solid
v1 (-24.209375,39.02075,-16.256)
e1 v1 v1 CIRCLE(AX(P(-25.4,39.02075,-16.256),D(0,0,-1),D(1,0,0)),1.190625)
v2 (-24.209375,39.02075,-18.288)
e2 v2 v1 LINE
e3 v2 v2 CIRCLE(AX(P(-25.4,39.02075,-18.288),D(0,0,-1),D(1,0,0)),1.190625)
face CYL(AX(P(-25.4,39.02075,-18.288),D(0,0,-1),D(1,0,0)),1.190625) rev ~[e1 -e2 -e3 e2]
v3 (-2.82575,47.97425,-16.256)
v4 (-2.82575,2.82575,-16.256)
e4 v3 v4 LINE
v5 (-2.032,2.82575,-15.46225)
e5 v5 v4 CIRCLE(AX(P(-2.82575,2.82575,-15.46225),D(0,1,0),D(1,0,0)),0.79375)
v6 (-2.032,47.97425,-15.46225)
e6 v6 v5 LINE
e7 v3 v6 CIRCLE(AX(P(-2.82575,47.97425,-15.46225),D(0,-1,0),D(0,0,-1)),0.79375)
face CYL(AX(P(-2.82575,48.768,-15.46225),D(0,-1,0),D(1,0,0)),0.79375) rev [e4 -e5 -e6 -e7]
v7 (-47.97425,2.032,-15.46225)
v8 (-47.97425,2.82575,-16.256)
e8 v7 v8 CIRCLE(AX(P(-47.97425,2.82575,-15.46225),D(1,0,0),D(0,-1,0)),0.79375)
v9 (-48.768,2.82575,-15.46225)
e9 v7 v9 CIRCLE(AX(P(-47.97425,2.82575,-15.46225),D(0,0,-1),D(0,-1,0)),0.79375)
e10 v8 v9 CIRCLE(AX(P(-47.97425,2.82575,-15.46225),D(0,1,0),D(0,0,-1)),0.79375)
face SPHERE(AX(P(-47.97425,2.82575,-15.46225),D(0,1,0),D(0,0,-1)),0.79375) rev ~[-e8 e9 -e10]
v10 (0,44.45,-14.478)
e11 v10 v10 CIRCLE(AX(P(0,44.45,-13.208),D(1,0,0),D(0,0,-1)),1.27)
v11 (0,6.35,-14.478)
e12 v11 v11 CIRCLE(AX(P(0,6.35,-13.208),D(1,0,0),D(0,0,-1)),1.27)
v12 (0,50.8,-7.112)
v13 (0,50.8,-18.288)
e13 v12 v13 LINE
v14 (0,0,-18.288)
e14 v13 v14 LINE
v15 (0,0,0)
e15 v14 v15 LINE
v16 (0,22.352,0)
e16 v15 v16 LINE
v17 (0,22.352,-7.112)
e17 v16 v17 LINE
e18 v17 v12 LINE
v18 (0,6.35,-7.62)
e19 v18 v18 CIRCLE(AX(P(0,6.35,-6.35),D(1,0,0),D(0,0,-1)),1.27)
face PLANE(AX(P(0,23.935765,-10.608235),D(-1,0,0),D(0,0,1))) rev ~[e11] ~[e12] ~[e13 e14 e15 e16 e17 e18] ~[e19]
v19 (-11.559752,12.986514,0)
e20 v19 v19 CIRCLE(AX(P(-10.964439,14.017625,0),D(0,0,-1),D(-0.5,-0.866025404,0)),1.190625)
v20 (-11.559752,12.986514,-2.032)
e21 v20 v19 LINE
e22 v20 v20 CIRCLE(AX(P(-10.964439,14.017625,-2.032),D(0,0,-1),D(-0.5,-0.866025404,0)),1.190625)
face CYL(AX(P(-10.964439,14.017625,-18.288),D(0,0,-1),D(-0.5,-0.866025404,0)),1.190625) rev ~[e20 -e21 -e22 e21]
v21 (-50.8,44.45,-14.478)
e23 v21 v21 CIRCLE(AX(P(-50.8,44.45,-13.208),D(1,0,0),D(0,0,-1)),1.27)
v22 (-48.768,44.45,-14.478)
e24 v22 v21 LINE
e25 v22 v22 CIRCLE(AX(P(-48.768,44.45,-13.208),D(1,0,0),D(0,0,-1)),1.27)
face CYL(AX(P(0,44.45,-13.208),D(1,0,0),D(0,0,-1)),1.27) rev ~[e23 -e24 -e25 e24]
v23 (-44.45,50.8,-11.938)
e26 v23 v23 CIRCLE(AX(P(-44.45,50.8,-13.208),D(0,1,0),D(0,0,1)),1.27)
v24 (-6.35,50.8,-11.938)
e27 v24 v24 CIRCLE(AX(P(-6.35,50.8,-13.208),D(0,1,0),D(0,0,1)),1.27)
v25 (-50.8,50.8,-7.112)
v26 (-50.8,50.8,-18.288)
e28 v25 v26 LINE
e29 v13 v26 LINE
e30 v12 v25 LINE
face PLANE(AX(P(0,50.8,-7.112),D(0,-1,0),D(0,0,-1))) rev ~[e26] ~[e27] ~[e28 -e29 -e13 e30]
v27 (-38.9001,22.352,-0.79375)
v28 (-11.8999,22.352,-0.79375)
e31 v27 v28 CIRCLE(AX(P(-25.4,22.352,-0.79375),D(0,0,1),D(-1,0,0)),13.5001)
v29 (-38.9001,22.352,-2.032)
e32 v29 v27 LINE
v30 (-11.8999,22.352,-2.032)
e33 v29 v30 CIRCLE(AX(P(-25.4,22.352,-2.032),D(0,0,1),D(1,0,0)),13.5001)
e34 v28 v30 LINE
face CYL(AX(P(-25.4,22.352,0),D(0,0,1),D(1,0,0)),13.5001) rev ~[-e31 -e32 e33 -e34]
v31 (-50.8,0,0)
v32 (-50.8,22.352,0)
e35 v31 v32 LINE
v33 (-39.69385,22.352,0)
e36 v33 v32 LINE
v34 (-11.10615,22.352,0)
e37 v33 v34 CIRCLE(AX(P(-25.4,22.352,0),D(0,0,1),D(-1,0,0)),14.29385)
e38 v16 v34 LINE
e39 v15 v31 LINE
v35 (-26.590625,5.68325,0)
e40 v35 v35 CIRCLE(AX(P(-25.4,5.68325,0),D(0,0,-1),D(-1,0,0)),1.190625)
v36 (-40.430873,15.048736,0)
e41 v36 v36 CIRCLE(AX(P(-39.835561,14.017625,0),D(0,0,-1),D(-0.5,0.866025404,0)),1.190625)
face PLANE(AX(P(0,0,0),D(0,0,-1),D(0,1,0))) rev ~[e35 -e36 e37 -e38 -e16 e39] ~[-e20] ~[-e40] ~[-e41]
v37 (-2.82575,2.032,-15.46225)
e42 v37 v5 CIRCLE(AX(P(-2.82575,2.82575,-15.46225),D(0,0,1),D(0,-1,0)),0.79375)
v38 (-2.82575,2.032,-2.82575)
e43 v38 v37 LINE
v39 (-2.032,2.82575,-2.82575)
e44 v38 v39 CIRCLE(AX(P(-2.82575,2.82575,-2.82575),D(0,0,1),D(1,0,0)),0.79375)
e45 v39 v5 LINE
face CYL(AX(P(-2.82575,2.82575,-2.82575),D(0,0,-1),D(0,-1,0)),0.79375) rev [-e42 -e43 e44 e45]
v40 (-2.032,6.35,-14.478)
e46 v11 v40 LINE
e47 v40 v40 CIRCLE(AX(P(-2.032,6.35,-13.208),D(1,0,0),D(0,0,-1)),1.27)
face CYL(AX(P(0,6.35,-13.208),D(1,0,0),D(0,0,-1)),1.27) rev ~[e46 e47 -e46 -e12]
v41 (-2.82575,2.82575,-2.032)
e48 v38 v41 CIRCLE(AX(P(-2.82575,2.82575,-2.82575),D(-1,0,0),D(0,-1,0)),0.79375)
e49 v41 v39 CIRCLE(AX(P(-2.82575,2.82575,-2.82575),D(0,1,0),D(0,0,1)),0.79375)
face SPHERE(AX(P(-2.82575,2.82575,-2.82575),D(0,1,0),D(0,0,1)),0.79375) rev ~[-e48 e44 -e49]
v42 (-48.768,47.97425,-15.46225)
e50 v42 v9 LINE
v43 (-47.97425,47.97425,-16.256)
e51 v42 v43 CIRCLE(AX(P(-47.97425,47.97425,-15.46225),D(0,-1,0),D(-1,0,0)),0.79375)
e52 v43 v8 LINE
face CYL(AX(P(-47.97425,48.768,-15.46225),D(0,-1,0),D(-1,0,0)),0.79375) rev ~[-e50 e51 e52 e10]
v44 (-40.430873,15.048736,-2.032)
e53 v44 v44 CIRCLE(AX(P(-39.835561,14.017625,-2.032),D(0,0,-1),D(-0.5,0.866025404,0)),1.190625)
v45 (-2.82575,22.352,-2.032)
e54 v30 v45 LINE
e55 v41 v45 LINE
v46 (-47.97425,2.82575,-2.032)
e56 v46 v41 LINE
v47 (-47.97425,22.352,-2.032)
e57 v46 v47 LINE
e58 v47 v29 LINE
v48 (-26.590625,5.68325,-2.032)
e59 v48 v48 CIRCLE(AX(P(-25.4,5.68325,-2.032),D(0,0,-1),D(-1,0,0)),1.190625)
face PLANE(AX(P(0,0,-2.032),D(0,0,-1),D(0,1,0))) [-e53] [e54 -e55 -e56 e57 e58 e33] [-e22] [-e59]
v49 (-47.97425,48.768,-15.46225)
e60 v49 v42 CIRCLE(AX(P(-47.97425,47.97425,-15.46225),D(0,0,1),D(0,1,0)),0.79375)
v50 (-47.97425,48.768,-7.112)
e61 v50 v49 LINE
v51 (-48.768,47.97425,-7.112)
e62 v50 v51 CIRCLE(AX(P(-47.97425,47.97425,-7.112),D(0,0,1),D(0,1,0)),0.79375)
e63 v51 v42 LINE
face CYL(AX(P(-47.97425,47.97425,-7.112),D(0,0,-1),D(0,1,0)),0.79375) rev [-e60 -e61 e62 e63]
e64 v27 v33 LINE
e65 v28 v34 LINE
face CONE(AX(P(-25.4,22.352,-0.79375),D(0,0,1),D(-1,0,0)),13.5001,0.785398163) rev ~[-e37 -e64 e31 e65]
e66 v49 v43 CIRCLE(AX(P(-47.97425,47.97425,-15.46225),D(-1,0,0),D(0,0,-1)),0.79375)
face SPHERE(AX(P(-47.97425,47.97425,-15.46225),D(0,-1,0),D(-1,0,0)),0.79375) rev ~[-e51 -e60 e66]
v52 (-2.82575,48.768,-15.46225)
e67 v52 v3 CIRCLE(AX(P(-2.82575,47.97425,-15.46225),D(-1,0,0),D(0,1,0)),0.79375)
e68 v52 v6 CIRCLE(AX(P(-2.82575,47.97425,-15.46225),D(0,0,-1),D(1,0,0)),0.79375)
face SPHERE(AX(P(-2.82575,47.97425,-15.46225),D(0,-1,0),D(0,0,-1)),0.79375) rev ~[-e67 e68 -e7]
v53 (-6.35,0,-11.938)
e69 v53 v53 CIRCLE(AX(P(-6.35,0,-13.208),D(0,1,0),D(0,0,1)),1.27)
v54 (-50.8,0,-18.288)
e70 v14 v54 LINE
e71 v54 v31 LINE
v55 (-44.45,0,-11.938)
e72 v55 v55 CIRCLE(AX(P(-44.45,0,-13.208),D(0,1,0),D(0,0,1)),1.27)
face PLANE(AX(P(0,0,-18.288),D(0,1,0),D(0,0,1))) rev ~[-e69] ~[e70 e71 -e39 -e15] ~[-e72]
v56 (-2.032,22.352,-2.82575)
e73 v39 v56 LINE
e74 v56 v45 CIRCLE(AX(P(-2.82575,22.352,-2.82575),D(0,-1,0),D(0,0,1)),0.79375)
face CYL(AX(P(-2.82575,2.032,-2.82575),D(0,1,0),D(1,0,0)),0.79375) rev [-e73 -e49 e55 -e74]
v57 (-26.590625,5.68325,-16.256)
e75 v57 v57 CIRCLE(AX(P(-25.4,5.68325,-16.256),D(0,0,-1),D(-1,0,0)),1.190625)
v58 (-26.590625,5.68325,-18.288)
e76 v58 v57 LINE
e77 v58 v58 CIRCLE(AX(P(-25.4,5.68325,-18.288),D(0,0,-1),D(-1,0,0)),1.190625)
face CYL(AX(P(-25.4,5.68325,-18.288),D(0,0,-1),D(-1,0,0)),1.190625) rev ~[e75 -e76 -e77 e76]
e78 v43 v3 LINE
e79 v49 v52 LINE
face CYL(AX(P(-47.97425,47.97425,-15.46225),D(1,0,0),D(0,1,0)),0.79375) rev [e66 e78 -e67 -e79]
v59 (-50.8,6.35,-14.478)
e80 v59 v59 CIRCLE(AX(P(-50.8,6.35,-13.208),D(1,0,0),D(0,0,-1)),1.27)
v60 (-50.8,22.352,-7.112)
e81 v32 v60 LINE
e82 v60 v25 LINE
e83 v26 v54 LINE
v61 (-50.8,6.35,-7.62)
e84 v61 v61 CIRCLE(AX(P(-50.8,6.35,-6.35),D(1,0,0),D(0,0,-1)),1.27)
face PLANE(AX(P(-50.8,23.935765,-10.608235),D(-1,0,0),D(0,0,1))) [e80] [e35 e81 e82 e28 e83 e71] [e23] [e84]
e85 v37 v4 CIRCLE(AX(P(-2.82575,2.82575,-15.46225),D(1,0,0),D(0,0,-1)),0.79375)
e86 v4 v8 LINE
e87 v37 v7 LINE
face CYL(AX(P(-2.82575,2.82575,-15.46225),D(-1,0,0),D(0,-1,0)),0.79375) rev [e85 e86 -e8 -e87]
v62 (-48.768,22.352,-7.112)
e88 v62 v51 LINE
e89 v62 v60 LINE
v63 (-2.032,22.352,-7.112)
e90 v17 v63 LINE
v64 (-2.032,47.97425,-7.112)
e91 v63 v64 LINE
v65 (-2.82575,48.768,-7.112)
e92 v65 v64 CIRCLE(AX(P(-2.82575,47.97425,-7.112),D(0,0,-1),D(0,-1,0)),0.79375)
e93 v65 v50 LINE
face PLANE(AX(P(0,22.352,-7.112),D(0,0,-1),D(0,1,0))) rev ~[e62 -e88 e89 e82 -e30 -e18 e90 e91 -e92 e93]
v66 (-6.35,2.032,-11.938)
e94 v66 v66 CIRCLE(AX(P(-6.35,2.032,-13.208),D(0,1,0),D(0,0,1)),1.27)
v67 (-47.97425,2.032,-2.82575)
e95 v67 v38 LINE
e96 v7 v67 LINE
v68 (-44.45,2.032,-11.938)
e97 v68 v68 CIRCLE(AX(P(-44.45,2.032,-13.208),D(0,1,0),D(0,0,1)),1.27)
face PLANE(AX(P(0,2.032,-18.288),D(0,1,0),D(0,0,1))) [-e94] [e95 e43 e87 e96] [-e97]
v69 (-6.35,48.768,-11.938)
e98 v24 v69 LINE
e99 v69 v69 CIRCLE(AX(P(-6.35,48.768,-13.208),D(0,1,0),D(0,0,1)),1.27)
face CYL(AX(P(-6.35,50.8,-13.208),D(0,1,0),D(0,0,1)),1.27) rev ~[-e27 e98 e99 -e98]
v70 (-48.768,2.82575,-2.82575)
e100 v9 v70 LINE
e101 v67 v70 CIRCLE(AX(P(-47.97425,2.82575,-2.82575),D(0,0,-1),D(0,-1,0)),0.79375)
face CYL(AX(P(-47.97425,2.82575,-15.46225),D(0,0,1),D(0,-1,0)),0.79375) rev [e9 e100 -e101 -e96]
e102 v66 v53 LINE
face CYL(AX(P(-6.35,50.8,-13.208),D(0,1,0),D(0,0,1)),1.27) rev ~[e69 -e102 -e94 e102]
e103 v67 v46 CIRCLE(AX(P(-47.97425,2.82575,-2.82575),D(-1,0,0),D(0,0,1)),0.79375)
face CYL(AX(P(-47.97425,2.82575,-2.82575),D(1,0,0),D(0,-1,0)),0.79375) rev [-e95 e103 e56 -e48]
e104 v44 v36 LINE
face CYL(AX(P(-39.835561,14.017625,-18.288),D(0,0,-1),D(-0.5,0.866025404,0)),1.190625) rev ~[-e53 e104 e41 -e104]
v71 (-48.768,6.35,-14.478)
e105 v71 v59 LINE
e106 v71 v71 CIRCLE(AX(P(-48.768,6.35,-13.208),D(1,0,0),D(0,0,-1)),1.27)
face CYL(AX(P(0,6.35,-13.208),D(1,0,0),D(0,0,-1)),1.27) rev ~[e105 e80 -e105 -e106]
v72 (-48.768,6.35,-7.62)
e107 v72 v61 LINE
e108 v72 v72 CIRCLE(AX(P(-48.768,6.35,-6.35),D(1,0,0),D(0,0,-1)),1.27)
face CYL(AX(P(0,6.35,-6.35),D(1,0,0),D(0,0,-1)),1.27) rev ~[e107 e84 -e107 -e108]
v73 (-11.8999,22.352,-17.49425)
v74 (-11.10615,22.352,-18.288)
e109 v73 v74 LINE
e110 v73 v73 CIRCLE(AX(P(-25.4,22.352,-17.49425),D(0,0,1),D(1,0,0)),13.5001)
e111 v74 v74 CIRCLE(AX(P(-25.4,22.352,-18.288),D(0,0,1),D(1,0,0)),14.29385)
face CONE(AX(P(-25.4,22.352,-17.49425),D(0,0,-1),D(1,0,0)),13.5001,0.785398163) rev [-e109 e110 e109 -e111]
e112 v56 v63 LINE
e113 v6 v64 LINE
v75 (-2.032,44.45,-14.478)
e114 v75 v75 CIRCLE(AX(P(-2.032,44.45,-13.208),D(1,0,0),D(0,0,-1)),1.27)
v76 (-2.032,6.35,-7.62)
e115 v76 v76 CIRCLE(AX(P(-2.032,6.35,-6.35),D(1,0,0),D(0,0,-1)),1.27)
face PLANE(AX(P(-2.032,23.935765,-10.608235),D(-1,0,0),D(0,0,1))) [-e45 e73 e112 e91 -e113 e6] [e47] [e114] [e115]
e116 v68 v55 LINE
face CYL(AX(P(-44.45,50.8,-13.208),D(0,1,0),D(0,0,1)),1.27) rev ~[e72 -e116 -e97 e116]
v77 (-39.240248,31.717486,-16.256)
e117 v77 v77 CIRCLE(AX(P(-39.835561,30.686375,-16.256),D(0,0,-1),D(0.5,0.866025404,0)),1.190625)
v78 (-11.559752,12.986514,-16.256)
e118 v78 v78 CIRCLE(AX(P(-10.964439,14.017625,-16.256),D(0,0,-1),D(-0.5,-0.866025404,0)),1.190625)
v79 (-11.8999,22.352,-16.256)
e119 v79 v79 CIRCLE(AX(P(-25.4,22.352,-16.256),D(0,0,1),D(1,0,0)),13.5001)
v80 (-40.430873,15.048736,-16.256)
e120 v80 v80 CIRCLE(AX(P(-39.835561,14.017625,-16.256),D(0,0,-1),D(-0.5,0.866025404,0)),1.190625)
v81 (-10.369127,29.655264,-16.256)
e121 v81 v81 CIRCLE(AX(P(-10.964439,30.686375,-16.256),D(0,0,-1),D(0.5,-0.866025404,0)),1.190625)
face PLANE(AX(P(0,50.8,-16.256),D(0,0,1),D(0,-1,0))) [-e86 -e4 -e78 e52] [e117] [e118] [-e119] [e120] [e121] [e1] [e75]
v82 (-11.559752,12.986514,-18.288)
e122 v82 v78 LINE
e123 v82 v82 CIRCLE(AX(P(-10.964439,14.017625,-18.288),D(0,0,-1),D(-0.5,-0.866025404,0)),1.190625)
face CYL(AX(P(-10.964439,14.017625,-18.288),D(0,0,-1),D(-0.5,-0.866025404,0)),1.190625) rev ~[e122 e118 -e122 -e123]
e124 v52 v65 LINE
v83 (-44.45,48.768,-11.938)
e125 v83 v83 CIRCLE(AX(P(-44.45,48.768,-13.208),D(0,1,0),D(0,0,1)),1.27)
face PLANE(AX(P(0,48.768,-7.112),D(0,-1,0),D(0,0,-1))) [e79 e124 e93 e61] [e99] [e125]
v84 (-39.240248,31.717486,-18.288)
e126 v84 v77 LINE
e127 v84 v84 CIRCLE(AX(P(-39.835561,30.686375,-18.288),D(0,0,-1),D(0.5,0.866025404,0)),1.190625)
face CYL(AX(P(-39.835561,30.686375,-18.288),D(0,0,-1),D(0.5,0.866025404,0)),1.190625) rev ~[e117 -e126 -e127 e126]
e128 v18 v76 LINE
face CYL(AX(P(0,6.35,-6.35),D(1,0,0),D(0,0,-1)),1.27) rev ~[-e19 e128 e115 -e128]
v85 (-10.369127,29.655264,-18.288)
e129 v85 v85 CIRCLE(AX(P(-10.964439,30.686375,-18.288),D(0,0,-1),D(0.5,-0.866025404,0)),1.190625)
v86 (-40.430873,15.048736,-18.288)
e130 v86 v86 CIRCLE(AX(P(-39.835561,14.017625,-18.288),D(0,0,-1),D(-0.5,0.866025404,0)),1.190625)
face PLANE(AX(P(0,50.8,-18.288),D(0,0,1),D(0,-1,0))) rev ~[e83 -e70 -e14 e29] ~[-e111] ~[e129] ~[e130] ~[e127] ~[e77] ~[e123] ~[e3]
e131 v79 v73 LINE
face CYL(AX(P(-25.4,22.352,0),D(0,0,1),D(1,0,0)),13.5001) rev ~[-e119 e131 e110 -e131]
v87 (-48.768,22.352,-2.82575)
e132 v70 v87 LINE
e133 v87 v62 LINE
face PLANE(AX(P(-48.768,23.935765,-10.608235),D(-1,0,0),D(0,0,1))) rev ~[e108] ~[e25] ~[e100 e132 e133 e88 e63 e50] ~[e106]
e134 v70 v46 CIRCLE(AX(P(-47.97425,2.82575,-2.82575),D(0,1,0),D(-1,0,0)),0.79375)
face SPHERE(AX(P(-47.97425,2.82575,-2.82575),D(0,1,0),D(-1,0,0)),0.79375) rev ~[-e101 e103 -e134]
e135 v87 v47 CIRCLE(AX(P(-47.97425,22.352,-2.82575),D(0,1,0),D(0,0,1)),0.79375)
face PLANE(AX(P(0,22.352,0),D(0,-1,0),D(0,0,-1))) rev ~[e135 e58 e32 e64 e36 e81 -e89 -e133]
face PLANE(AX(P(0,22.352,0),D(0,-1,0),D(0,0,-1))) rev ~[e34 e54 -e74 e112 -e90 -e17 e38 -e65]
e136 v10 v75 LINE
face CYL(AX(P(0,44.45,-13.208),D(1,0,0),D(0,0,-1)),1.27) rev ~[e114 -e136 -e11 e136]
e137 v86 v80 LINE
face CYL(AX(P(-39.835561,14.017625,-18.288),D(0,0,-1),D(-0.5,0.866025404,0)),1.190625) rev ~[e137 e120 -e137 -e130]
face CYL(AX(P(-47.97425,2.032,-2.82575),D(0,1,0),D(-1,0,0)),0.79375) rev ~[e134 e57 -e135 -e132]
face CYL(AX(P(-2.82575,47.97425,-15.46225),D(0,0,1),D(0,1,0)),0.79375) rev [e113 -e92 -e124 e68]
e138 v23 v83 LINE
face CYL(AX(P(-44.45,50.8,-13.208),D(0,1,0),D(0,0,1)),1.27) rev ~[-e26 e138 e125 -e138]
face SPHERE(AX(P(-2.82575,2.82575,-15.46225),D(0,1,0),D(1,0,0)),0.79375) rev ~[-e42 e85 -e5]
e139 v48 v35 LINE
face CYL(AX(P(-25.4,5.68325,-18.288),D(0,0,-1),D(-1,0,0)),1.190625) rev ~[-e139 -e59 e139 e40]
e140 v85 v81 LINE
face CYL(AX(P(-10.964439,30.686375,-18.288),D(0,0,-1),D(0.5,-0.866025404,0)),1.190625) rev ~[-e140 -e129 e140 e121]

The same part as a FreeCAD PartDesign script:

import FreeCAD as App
import Part
import Sketcher
Q = App.Units.Quantity


def edges_at(feature, points):
    """Names of the edges that pass closest to the given points."""
    edges = feature.Shape.Edges
    near = lambda p: min(range(len(edges)), key=lambda i: edges[i].distToShape(Part.Vertex(*p))[0])
    return sorted({f"Edge{near(p) + 1}" for p in points})


def faces_at(feature, points):
    """Names of the faces that lie closest to the given points."""
    faces = feature.Shape.Faces
    near = lambda p: min(range(len(faces)), key=lambda i: faces[i].distToShape(Part.Vertex(*p))[0])
    return sorted({f"Face{near(p) + 1}" for p in points})

doc = App.newDocument("Part")
body = doc.addObject("PartDesign::Body", "Body")

sketch1 = body.newObject("Sketcher::SketchObject", "Sketch")
sketch1.AttachmentSupport = (doc.getObject("YZ_Plane"), [""])
sketch1.MapMode = "FlatFace"
sketch1.addGeometry(Part.LineSegment(App.Vector(51, -18, 0), App.Vector(51, -7, 0)), False)
sketch1.addGeometry(Part.LineSegment(App.Vector(51, -7, 0), App.Vector(22, -7, 0)), False)
sketch1.addGeometry(Part.LineSegment(App.Vector(22, -7, 0), App.Vector(22, 0, 0)), False)
sketch1.addGeometry(Part.LineSegment(App.Vector(22, 0, 0), App.Vector(0, 0, 0)), False)
sketch1.addGeometry(Part.LineSegment(App.Vector(0, 0, 0), App.Vector(0, -18, 0)), False)
sketch1.addGeometry(Part.LineSegment(App.Vector(0, -18, 0), App.Vector(51, -18, 0)), False)
sketch1.addConstraint(Sketcher.Constraint("Coincident", 0, 2, 1, 1))
sketch1.addConstraint(Sketcher.Constraint("Coincident", 1, 2, 2, 1))
sketch1.addConstraint(Sketcher.Constraint("Coincident", 2, 2, 3, 1))
sketch1.addConstraint(Sketcher.Constraint("Coincident", 3, 2, 4, 1))
sketch1.addConstraint(Sketcher.Constraint("Coincident", 4, 2, 5, 1))
sketch1.addConstraint(Sketcher.Constraint("Coincident", 5, 2, 0, 1))
sketch1.addConstraint(Sketcher.Constraint("Vertical", 0))
sketch1.addConstraint(Sketcher.Constraint("Horizontal", 1))
sketch1.addConstraint(Sketcher.Constraint("Vertical", 2))
sketch1.addConstraint(Sketcher.Constraint("Horizontal", 3))
sketch1.addConstraint(Sketcher.Constraint("Vertical", 4))
sketch1.addConstraint(Sketcher.Constraint("Horizontal", 5))
sketch1.addConstraint(Sketcher.Constraint("Coincident", 3, 2, -1, 1))
sketch1.addConstraint(Sketcher.Constraint("DistanceX", 5, 1, 5, 2, Q("2 in")))
sketch1.addConstraint(Sketcher.Constraint("DistanceX", 1, 2, 1, 1, Q("1.12 in")))
sketch1.addConstraint(Sketcher.Constraint("DistanceY", 0, 1, 0, 2, Q("0.44 in")))
sketch1.addConstraint(Sketcher.Constraint("DistanceY", 2, 1, 2, 2, Q("0.28 in")))
pad1 = body.newObject("PartDesign::Pad", "Pad")
pad1.Profile = sketch1
pad1.Length = Q("2 in")
pad1.Reversed = True
doc.recompute()

thickness = body.newObject("PartDesign::Thickness", "Thickness")
thickness.Base = (pad1, faces_at(pad1, [(-25.4, 22.352, -3.556), (-25.4, 36.576, -7.112)]))
thickness.Value = Q("0.08 in")
thickness.Reversed = True
thickness.Join = "Intersection"

sketch2 = body.newObject("Sketcher::SketchObject", "Sketch001")
sketch2.AttachmentSupport = (doc.getObject("XY_Plane"), [""])
sketch2.MapMode = "FlatFace"
sketch2.addGeometry(Part.Circle(App.Vector(-25, 22, 0), App.Vector(0, 0, 1), 14), False)
sketch2.addConstraint(Sketcher.Constraint("Diameter", 0, Q("1.063 in")))
sketch2.addConstraint(Sketcher.Constraint("DistanceX", 0, 3, -1, 1, Q("1 in")))
sketch2.addConstraint(Sketcher.Constraint("DistanceY", -1, 1, 0, 3, Q("0.88 in")))
pocket1 = body.newObject("PartDesign::Pocket", "Pocket")
pocket1.Profile = sketch2
pocket1.Type = "ThroughAll"

sketch3 = body.newObject("Sketcher::SketchObject", "Sketch002")
sketch3.AttachmentSupport = (doc.getObject("YZ_Plane"), [""])
sketch3.MapMode = "FlatFace"
sketch3.addGeometry(Part.Circle(App.Vector(44.5, -13.2, 0), App.Vector(0, 0, 1), 1.3), False)
sketch3.addGeometry(Part.Circle(App.Vector(6.3, -13.2, 0), App.Vector(0, 0, 1), 1.3), False)
sketch3.addGeometry(Part.Circle(App.Vector(6.3, -6.3, 0), App.Vector(0, 0, 1), 1.3), False)
sketch3.addConstraint(Sketcher.Constraint("Equal", 0, 1))
sketch3.addConstraint(Sketcher.Constraint("Equal", 1, 2))
sketch3.addConstraint(Sketcher.Constraint("Horizontal", 0, 3, 1, 3))
sketch3.addConstraint(Sketcher.Constraint("Vertical", 1, 3, 2, 3))
sketch3.addConstraint(Sketcher.Constraint("Diameter", 0, Q("0.1 in")))
sketch3.addConstraint(Sketcher.Constraint("DistanceX", 1, 3, 0, 3, Q("1.5 in")))
sketch3.addConstraint(Sketcher.Constraint("DistanceX", -1, 1, 0, 3, Q("1.75 in")))
sketch3.addConstraint(Sketcher.Constraint("DistanceY", 0, 3, -1, 1, Q("0.52 in")))
sketch3.addConstraint(Sketcher.Constraint("DistanceY", 2, 3, -1, 1, Q("0.25 in")))
pocket2 = body.newObject("PartDesign::Pocket", "Pocket001")
pocket2.Profile = sketch3
pocket2.Type = "ThroughAll"

sketch4 = body.newObject("Sketcher::SketchObject", "Sketch003")
sketch4.AttachmentSupport = (doc.getObject("XZ_Plane"), [""])
sketch4.MapMode = "FlatFace"
sketch4.AttachmentOffset = App.Placement(App.Vector(0, 0, -2 * 25.4), App.Rotation())
sketch4.addGeometry(Part.Circle(App.Vector(-44.5, -13.2, 0), App.Vector(0, 0, 1), 1.3), False)
sketch4.addGeometry(Part.Circle(App.Vector(-6.3, -13.2, 0), App.Vector(0, 0, 1), 1.3), False)
sketch4.addConstraint(Sketcher.Constraint("Equal", 0, 1))
sketch4.addConstraint(Sketcher.Constraint("Horizontal", 0, 3, 1, 3))
sketch4.addConstraint(Sketcher.Constraint("Diameter", 0, Q("0.1 in")))
sketch4.addConstraint(Sketcher.Constraint("DistanceX", 0, 3, 1, 3, Q("1.5 in")))
sketch4.addConstraint(Sketcher.Constraint("DistanceX", 0, 3, -1, 1, Q("1.75 in")))
sketch4.addConstraint(Sketcher.Constraint("DistanceY", 0, 3, -1, 1, Q("0.52 in")))
pocket3 = body.newObject("PartDesign::Pocket", "Pocket002")
pocket3.Profile = sketch4
pocket3.Type = "ThroughAll"
pocket3.Reversed = True

sketch5 = body.newObject("Sketcher::SketchObject", "Sketch004")
sketch5.AttachmentSupport = (doc.getObject("XY_Plane"), [""])
sketch5.MapMode = "FlatFace"
sketch5.AttachmentOffset = App.Placement(App.Vector(0, 0, -0.72 * 25.4), App.Rotation())
sketch5.addGeometry(Part.Circle(App.Vector(-25.4, 5.7, 0), App.Vector(0, 0, 1), 1.2), False)
sketch5.addConstraint(Sketcher.Constraint("Diameter", 0, Q("0.09375 in")))
sketch5.addConstraint(Sketcher.Constraint("DistanceX", 0, 3, -1, 1, Q("1 in")))
sketch5.addConstraint(Sketcher.Constraint("DistanceY", -1, 1, 0, 3, 5.68325))
pocket4 = body.newObject("PartDesign::Pocket", "Pocket003")
pocket4.Profile = sketch5
pocket4.Type = "ThroughAll"
pocket4.Reversed = True
doc.recompute()

datumline = body.newObject("PartDesign::Line", "DatumLine")
datumline.Placement = App.Placement(App.Vector(-25.4, 22.352, 0), App.Rotation(App.Vector(0, 0, 1), App.Vector(0, 0, 1)))
polarpattern = body.newObject("PartDesign::PolarPattern", "PolarPattern")
polarpattern.Originals = [pocket4]
polarpattern.Axis = (datumline, [""])
polarpattern.Angle = 360
polarpattern.Occurrences = 6
body.Tip = polarpattern
doc.recompute()

fillet = body.newObject("PartDesign::Fillet", "Fillet")
fillet.Base = (polarpattern, edges_at(polarpattern, [
    (-48.768, 25.4, -16.256),
    (-48.768, 12.192, -2.032),
    (-2.032, 12.192, -2.032),
    (-2.032, 25.4, -16.256),
]))
fillet.Radius = Q("0.03125 in")
doc.recompute()

fillet2 = body.newObject("PartDesign::Fillet", "Fillet001")
fillet2.Base = (fillet, edges_at(fillet, [
    (-48.768, 2.032, -9.144),
    (-48.768, 48.768, -11.287),
    (-2.032, 48.768, -11.287),
    (-25.4, 48.768, -16.256),
    (-2.264, 48.768, -16.024),
    (-48.536, 48.768, -16.024),
    (-25.4, 2.032, -16.256),
    (-2.032, 2.032, -9.144),
    (-25.4, 2.032, -2.032),
    (-48.536, 2.032, -2.264),
    (-2.264, 2.032, -2.264),
    (-2.264, 2.032, -16.024),
    (-48.536, 2.032, -16.024),
]))
fillet2.Radius = Q("0.03125 in")
doc.recompute()

chamfer = body.newObject("PartDesign::Chamfer", "Chamfer")
chamfer.Base = (fillet2, edges_at(fillet2, [(-38.9, 22.352, -18.288), (-25.4, 8.852, 0)]))
chamfer.Size = Q("0.03125 in")

doc.recompute()
